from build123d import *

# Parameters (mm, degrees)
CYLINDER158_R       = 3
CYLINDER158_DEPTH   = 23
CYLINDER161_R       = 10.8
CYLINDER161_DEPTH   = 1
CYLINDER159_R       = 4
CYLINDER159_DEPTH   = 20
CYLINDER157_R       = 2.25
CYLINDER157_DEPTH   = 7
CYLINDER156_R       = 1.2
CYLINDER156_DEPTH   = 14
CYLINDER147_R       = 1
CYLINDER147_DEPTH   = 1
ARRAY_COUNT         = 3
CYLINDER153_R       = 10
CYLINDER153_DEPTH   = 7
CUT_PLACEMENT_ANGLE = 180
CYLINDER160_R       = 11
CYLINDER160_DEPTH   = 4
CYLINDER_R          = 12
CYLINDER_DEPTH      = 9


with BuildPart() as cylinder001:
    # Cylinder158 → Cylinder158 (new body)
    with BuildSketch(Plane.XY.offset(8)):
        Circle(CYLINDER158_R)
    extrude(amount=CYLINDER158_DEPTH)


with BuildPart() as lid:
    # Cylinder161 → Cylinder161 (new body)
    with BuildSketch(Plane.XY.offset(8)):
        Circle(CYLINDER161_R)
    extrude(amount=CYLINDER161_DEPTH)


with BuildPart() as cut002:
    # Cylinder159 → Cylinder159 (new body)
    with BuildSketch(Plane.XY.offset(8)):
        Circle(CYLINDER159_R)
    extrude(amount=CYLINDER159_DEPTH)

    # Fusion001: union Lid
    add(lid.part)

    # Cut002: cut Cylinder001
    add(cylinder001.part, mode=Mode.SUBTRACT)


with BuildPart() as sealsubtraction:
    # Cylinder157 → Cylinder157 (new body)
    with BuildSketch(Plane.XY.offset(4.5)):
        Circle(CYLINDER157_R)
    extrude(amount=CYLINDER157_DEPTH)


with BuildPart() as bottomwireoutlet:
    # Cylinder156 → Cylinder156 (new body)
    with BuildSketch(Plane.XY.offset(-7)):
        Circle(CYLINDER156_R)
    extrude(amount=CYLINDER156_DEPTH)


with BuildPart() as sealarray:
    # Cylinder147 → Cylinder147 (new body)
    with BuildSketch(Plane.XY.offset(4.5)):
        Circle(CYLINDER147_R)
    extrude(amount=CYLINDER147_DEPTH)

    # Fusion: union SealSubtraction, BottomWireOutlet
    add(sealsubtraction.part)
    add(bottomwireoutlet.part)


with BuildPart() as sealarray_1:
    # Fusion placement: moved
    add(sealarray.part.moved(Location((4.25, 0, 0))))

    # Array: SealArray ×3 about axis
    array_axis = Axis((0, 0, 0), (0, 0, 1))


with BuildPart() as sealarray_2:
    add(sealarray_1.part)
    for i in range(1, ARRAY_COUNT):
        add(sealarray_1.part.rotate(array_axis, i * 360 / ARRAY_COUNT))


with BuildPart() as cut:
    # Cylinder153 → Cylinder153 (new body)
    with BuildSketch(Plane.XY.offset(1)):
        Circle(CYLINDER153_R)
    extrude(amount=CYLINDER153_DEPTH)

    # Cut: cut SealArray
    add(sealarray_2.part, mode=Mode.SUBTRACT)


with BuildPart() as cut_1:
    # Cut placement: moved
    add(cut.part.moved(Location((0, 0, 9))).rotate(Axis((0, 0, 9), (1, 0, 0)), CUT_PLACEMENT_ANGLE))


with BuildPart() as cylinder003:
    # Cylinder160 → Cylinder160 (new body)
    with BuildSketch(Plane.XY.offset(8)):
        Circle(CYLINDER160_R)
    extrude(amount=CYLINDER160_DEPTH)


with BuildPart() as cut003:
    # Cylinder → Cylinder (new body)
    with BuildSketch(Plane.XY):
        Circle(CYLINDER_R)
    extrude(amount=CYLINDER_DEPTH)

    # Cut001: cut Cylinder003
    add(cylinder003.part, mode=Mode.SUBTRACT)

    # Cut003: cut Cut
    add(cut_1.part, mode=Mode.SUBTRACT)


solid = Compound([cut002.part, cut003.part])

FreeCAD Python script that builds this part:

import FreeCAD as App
import Part
import Sketcher

doc = App.newDocument("Part")
body = doc.addObject("PartDesign::Body", "Body")

# Sketch on XY plane
sketch1 = doc.addObject("Sketcher::SketchObject", "Sketch")
body.addObject(sketch1)
sketch1.AttachmentSupport = (doc.XY_Plane, [""])
sketch1.MapMode = "FlatFace"
sketch1.AttachmentOffset = App.Placement(App.Vector(0, 0, 8), App.Rotation())
sketch1.addGeometry(Part.Circle(App.Vector(0, 0, 0), App.Vector(0, 0, 1), 3), False)
sketch1.addConstraint([
    Sketcher.Constraint("Coincident", 0, 3, -1, 1),
    Sketcher.Constraint("Diameter", 0, 6.0),
])
pad1 = doc.addObject("PartDesign::Pad", "Pad")
body.addObject(pad1)
pad1.Profile = sketch1
pad1.Length = 23
body2 = doc.addObject("PartDesign::Body", "Body001")

# Sketch on XY plane
sketch2 = doc.addObject("Sketcher::SketchObject", "Sketch001")
body2.addObject(sketch2)
sketch2.AttachmentSupport = (doc.getObject("XY_Plane001"), [""])
sketch2.MapMode = "FlatFace"
sketch2.AttachmentOffset = App.Placement(App.Vector(0, 0, 8), App.Rotation())
sketch2.addGeometry(Part.Circle(App.Vector(0, 0, 0), App.Vector(0, 0, 1), 11), False)
sketch2.addConstraint([
    Sketcher.Constraint("Coincident", 0, 3, -1, 1),
    Sketcher.Constraint("Diameter", 0, 21.6),
])
pad2 = doc.addObject("PartDesign::Pad", "Pad001")
body2.addObject(pad2)
pad2.Profile = sketch2
pad2.Length = 1
body3 = doc.addObject("PartDesign::Body", "Body002")

# Sketch on XY plane
sketch3 = doc.addObject("Sketcher::SketchObject", "Sketch002")
body3.addObject(sketch3)
sketch3.AttachmentSupport = (doc.getObject("XY_Plane002"), [""])
sketch3.MapMode = "FlatFace"
sketch3.AttachmentOffset = App.Placement(App.Vector(0, 0, 8), App.Rotation())
sketch3.addGeometry(Part.Circle(App.Vector(0, 0, 0), App.Vector(0, 0, 1), 4), False)
sketch3.addConstraint([
    Sketcher.Constraint("Coincident", 0, 3, -1, 1),
    Sketcher.Constraint("Diameter", 0, 8.0),
])
pad3 = doc.addObject("PartDesign::Pad", "Pad002")
body3.addObject(pad3)
pad3.Profile = sketch3
pad3.Length = 20
doc.recompute()

boolean = doc.addObject("PartDesign::Boolean", "Boolean")
body3.addObject(boolean)
boolean.Type = "Fuse"
boolean.addObjects([body2])
doc.recompute()

boolean2 = doc.addObject("PartDesign::Boolean", "Boolean001")
body3.addObject(boolean2)
boolean2.Type = "Cut"
boolean2.addObjects([body])
body4 = doc.addObject("PartDesign::Body", "Body003")

# Sketch on XY plane
sketch4 = doc.addObject("Sketcher::SketchObject", "Sketch003")
body4.addObject(sketch4)
sketch4.AttachmentSupport = (doc.getObject("XY_Plane003"), [""])
sketch4.MapMode = "FlatFace"
sketch4.AttachmentOffset = App.Placement(App.Vector(0, 0, 4.5), App.Rotation())
sketch4.addGeometry(Part.Circle(App.Vector(0, 0, 0), App.Vector(0, 0, 1), 2.2), False)
sketch4.addConstraint([
    Sketcher.Constraint("Coincident", 0, 3, -1, 1),
    Sketcher.Constraint("Diameter", 0, 4.5),
])
pad4 = doc.addObject("PartDesign::Pad", "Pad003")
body4.addObject(pad4)
pad4.Profile = sketch4
pad4.Length = 7
body5 = doc.addObject("PartDesign::Body", "Body004")

# Sketch on XY plane
sketch5 = doc.addObject("Sketcher::SketchObject", "Sketch004")
body5.addObject(sketch5)
sketch5.AttachmentSupport = (doc.getObject("XY_Plane004"), [""])
sketch5.MapMode = "FlatFace"
sketch5.AttachmentOffset = App.Placement(App.Vector(0, 0, -7), App.Rotation())
sketch5.addGeometry(Part.Circle(App.Vector(0, 0, 0), App.Vector(0, 0, 1), 1.2), False)
sketch5.addConstraint([
    Sketcher.Constraint("Coincident", 0, 3, -1, 1),
    Sketcher.Constraint("Diameter", 0, 2.4),
])
pad5 = doc.addObject("PartDesign::Pad", "Pad004")
body5.addObject(pad5)
pad5.Profile = sketch5
pad5.Length = 14
body6 = doc.addObject("PartDesign::Body", "Body005")

# Sketch on XY plane
sketch6 = doc.addObject("Sketcher::SketchObject", "Sketch005")
body6.addObject(sketch6)
sketch6.AttachmentSupport = (doc.getObject("XY_Plane005"), [""])
sketch6.MapMode = "FlatFace"
sketch6.AttachmentOffset = App.Placement(App.Vector(0, 0, 4.5), App.Rotation())
sketch6.addGeometry(Part.Circle(App.Vector(0, 0, 0), App.Vector(0, 0, 1), 1), False)
sketch6.addConstraint([
    Sketcher.Constraint("Coincident", 0, 3, -1, 1),
    Sketcher.Constraint("Diameter", 0, 2.0),
])
pad6 = doc.addObject("PartDesign::Pad", "Pad005")
body6.addObject(pad6)
pad6.Profile = sketch6
pad6.Length = 1
doc.recompute()

boolean3 = doc.addObject("PartDesign::Boolean", "Boolean002")
body6.addObject(boolean3)
boolean3.Type = "Fuse"
boolean3.addObjects([body4])
doc.recompute()

boolean4 = doc.addObject("PartDesign::Boolean", "Boolean003")
body6.addObject(boolean4)
boolean4.Type = "Fuse"
boolean4.addObjects([body5])
body7 = doc.addObject("PartDesign::Body", "Body006")
doc.recompute()

body6.Placement = App.Placement(App.Vector(4.25, 0, 0), App.Rotation(App.Vector(0, 0, 1), 0))
boolean5 = doc.addObject("PartDesign::Boolean", "Boolean004")
body7.addObject(boolean5)
boolean5.Type = "Fuse"
boolean5.addObjects([body6])
body8 = doc.addObject("PartDesign::Body", "Body007")
body8.AllowCompound = True
doc.recompute()

body8.BaseFeature = body7
doc.recompute()

body9 = doc.addObject("PartDesign::Body", "Body008")
body9.BaseFeature = body7
body9.Placement = App.Placement(App.Vector(0, 0, 0), App.Rotation(App.Vector(0, 0, 1), 120))
boolean6 = doc.addObject("PartDesign::Boolean", "Boolean005")
body8.addObject(boolean6)
boolean6.Type = "Fuse"
boolean6.addObjects([body9])
doc.recompute()

body7.Placement = App.Placement(App.Vector(0, 0, 0), App.Rotation(App.Vector(0, 0, 1), 240))
boolean7 = doc.addObject("PartDesign::Boolean", "Boolean006")
body8.addObject(boolean7)
boolean7.Type = "Fuse"
boolean7.addObjects([body7])
body10 = doc.addObject("PartDesign::Body", "Body009")

# Sketch on XY plane
sketch7 = doc.addObject("Sketcher::SketchObject", "Sketch006")
body10.addObject(sketch7)
sketch7.AttachmentSupport = (doc.getObject("XY_Plane009"), [""])
sketch7.MapMode = "FlatFace"
sketch7.AttachmentOffset = App.Placement(App.Vector(0, 0, 1), App.Rotation())
sketch7.addGeometry(Part.Circle(App.Vector(0, 0, 0), App.Vector(0, 0, 1), 10), False)
sketch7.addConstraint([
    Sketcher.Constraint("Coincident", 0, 3, -1, 1),
    Sketcher.Constraint("Diameter", 0, 20.0),
])
pad7 = doc.addObject("PartDesign::Pad", "Pad006")
body10.addObject(pad7)
pad7.Profile = sketch7
pad7.Length = 7
doc.recompute()

boolean8 = doc.addObject("PartDesign::Boolean", "Boolean007")
body10.addObject(boolean8)
boolean8.Type = "Cut"
boolean8.addObjects([body8])
body11 = doc.addObject("PartDesign::Body", "Body010")
doc.recompute()

body10.Placement = App.Placement(App.Vector(0, 0, 9), App.Rotation(App.Vector(1, 0, 0), 180))
boolean9 = doc.addObject("PartDesign::Boolean", "Boolean008")
body11.addObject(boolean9)
boolean9.Type = "Fuse"
boolean9.addObjects([body10])
body12 = doc.addObject("PartDesign::Body", "Body011")

# Sketch on XY plane
sketch8 = doc.addObject("Sketcher::SketchObject", "Sketch007")
body12.addObject(sketch8)
sketch8.AttachmentSupport = (doc.getObject("XY_Plane011"), [""])
sketch8.MapMode = "FlatFace"
sketch8.AttachmentOffset = App.Placement(App.Vector(0, 0, 8), App.Rotation())
sketch8.addGeometry(Part.Circle(App.Vector(0, 0, 0), App.Vector(0, 0, 1), 11), False)
sketch8.addConstraint([
    Sketcher.Constraint("Coincident", 0, 3, -1, 1),
    Sketcher.Constraint("Diameter", 0, 22.0),
])
pad8 = doc.addObject("PartDesign::Pad", "Pad007")
body12.addObject(pad8)
pad8.Profile = sketch8
pad8.Length = 4
body13 = doc.addObject("PartDesign::Body", "Body012")

# Sketch on XY plane
sketch9 = doc.addObject("Sketcher::SketchObject", "Sketch008")
body13.addObject(sketch9)
sketch9.AttachmentSupport = (doc.getObject("XY_Plane012"), [""])
sketch9.MapMode = "FlatFace"
sketch9.addGeometry(Part.Circle(App.Vector(0, 0, 0), App.Vector(0, 0, 1), 12), False)
sketch9.addConstraint([
    Sketcher.Constraint("Coincident", 0, 3, -1, 1),
    Sketcher.Constraint("Diameter", 0, 24.0),
])
pad9 = doc.addObject("PartDesign::Pad", "Pad008")
body13.addObject(pad9)
pad9.Profile = sketch9
pad9.Length = 9
doc.recompute()

boolean10 = doc.addObject("PartDesign::Boolean", "Boolean009")
body13.addObject(boolean10)
boolean10.Type = "Cut"
boolean10.addObjects([body12])
doc.recompute()

boolean11 = doc.addObject("PartDesign::Boolean", "Boolean010")
body13.addObject(boolean11)
boolean11.Type = "Cut"
boolean11.addObjects([body11])

doc.recompute()
